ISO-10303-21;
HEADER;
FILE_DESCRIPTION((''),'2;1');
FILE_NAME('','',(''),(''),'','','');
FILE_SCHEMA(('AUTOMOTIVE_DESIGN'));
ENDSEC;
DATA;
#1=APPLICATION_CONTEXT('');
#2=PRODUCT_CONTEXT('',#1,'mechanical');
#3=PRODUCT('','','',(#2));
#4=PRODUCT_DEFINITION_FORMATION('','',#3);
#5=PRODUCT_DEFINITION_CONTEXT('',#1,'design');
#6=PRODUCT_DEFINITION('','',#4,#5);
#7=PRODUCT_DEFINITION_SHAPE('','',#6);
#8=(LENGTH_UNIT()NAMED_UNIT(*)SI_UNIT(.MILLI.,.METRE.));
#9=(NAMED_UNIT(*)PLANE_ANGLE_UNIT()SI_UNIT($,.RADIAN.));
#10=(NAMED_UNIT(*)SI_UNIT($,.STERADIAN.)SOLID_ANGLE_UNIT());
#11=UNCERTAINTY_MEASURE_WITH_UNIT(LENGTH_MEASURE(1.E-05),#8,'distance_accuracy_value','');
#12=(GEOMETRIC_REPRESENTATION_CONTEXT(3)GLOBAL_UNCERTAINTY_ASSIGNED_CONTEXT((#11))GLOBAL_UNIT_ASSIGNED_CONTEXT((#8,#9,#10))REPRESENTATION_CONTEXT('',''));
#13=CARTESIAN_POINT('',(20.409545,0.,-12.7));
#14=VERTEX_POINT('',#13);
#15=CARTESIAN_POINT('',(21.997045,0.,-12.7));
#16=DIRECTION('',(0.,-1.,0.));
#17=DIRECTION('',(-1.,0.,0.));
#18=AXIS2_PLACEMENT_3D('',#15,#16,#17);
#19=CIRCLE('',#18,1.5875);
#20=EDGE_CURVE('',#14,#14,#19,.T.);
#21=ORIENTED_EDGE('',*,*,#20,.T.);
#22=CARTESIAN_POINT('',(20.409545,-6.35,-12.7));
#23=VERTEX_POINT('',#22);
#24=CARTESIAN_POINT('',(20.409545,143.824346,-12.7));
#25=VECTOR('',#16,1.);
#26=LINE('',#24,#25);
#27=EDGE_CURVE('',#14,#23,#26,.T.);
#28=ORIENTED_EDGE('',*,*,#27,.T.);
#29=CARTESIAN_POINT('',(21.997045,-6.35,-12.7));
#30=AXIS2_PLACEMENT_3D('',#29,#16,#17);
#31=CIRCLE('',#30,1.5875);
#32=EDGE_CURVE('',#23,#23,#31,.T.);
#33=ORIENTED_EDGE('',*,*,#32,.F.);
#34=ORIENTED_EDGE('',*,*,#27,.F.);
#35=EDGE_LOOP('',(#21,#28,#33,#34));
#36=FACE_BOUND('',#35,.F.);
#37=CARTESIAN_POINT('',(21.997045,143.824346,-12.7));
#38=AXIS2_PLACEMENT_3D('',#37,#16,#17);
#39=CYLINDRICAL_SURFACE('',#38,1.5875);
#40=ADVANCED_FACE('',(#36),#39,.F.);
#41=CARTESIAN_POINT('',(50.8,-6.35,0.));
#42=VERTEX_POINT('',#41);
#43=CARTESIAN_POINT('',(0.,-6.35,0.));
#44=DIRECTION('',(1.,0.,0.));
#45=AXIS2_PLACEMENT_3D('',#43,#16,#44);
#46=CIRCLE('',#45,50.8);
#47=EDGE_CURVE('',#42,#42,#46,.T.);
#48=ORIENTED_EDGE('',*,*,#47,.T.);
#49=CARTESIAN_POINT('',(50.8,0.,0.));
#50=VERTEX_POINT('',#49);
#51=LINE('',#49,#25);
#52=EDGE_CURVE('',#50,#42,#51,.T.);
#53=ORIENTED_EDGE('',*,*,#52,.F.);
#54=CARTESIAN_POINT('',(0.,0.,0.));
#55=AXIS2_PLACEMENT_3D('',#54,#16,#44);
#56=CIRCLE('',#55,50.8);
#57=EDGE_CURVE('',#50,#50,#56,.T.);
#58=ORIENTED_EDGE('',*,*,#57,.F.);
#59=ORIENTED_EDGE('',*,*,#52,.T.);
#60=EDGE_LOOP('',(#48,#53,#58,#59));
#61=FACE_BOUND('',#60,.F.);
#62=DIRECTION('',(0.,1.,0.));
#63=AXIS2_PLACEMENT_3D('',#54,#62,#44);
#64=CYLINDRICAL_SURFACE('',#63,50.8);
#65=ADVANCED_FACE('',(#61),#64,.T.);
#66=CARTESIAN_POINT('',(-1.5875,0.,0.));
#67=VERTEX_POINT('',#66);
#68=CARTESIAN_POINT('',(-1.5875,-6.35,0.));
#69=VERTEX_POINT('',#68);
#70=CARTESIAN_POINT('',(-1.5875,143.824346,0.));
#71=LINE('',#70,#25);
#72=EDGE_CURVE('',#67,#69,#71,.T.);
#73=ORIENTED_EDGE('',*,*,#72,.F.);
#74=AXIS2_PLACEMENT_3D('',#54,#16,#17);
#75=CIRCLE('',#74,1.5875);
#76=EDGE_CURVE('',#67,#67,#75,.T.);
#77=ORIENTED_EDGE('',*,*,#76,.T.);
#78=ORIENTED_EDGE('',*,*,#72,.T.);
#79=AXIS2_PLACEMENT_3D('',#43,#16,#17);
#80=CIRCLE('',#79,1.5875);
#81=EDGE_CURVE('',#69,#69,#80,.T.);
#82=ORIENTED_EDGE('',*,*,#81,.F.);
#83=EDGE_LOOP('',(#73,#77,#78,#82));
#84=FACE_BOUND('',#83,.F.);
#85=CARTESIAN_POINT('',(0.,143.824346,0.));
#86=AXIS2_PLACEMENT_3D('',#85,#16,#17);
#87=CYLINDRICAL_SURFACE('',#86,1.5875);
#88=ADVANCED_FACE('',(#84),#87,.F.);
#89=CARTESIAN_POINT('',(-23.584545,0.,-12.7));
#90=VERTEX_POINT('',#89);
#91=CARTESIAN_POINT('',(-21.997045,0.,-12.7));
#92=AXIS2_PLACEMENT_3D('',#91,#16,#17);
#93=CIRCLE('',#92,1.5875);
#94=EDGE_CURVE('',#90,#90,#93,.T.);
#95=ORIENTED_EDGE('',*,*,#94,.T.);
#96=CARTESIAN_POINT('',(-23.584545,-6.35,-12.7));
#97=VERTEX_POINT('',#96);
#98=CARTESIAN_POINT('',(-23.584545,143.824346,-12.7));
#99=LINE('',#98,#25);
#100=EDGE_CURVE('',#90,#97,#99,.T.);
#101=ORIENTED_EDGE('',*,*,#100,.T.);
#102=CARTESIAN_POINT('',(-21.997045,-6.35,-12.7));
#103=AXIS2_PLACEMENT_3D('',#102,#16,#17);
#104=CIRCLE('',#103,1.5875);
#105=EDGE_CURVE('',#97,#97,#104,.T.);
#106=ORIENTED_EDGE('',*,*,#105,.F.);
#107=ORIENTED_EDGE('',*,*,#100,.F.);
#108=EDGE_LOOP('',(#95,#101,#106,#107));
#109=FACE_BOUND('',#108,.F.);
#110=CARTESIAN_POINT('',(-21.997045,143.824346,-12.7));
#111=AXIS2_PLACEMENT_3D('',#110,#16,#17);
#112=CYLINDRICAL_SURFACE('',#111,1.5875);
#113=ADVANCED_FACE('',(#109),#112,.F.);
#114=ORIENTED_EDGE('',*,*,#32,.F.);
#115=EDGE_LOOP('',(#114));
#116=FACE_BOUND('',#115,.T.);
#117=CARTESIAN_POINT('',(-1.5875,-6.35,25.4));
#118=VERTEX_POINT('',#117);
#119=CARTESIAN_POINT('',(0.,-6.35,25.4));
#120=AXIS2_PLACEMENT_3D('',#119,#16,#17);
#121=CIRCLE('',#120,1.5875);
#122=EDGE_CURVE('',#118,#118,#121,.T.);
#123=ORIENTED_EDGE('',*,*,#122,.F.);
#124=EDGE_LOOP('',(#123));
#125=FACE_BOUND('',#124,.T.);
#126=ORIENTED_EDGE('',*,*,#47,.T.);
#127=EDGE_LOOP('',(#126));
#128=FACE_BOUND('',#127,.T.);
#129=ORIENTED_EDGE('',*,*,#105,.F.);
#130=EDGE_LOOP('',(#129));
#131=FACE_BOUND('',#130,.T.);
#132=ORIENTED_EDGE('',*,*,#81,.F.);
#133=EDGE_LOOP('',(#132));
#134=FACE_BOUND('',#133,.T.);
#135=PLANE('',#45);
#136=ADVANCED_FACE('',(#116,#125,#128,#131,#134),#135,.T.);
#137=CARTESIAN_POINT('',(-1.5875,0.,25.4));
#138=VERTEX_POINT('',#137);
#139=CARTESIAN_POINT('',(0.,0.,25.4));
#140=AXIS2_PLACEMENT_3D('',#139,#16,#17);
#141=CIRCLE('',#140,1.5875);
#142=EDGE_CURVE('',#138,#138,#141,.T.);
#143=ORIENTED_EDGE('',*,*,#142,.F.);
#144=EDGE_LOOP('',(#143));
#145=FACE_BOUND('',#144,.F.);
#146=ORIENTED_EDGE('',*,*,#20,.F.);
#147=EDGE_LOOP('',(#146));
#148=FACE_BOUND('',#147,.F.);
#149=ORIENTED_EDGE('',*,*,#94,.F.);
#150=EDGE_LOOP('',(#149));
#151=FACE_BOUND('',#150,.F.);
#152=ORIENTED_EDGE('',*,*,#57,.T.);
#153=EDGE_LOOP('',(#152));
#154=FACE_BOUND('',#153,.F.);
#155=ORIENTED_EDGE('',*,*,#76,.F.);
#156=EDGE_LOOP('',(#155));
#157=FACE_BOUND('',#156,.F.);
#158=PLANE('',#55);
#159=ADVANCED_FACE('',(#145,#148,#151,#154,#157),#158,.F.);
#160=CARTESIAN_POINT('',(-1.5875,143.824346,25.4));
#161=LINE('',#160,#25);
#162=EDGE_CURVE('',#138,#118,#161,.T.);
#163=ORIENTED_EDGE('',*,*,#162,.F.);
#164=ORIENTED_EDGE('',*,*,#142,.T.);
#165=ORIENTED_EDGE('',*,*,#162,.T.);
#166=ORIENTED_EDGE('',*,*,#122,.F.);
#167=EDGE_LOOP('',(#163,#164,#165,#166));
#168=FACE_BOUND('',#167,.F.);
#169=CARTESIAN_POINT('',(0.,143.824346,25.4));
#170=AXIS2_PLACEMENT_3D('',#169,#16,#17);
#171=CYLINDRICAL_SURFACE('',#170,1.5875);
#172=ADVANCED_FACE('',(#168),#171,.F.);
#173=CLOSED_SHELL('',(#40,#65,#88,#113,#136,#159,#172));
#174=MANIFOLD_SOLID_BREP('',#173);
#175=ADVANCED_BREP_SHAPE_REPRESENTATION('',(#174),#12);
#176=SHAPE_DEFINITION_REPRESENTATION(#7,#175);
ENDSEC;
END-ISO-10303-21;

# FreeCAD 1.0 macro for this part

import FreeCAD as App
import Part
import Sketcher
Q = App.Units.Quantity

doc = App.newDocument("Part")
body = doc.addObject("PartDesign::Body", "Body")

# Sketch on XZ plane
sketch1 = body.newObject("Sketcher::SketchObject", "Sketch")
sketch1.AttachmentSupport = (doc.getObject("XZ_Plane"), [""])
sketch1.MapMode = "FlatFace"
sketch1.addGeometry(Part.Circle(App.Vector(0, 0, 0), App.Vector(0, 0, 1), 51), False)
sketch1.addConstraint([
    Sketcher.Constraint("Coincident", 0, 3, -1, 1),
    Sketcher.Constraint("Diameter", 0, Q("4 in")),
])
pad1 = body.newObject("PartDesign::Pad", "Pad")
pad1.Profile = sketch1
pad1.Length = Q("0.25 in")

# Sketch on XZ plane
sketch2 = body.newObject("Sketcher::SketchObject", "Sketch001")
sketch2.AttachmentSupport = (doc.getObject("XZ_Plane"), [""])
sketch2.MapMode = "FlatFace"
sketch2.addGeometry(Part.Circle(App.Vector(0, 0, 0), App.Vector(0, 0, 1), 1.6), False)
sketch2.addConstraint([
    Sketcher.Constraint("Coincident", 0, 3, -1, 1),
    Sketcher.Constraint("Diameter", 0, Q("0.125 in")),
])
doc.recompute()
hole = body.newObject("PartDesign::Hole", "Hole")
hole.Profile = sketch2
hole.ThreadType = "None"
hole.Diameter = Q("0.125 in")
hole.DepthType = "ThroughAll"
hole.Reversed = True

# Sketch on XZ plane
sketch3 = body.newObject("Sketcher::SketchObject", "Sketch002")
sketch3.AttachmentSupport = (doc.getObject("XZ_Plane"), [""])
sketch3.MapMode = "FlatFace"
sketch3.addGeometry([
    Part.Circle(App.Vector(0, 25.4, 0), App.Vector(0, 0, 1), 1.6),
    Part.Circle(App.Vector(22, -12.7, 0), App.Vector(0, 0, 1), 1.6),
    Part.Circle(App.Vector(-22, -12.7, 0), App.Vector(0, 0, 1), 1.6),
], False)
sketch3.addConstraint([
    Sketcher.Constraint("Equal", 0, 1),
    Sketcher.Constraint("Equal", 1, 2),
    Sketcher.Constraint("Symmetric", 1, 3, 2, 3, -2),
    Sketcher.Constraint("PointOnObject", 0, 3, -2),
    Sketcher.Constraint("Diameter", 0, Q("0.125 in")),
    Sketcher.Constraint("DistanceY", -1, 1, 0, 3, Q("1 in")),
    Sketcher.Constraint("DistanceY", 1, 3, -1, 1, Q("0.5 in")),
    Sketcher.Constraint("DistanceX", 2, 3, 1, 3, Q("43.994091 mm")),
])
doc.recompute()
hole2 = body.newObject("PartDesign::Hole", "Hole001")
hole2.Profile = sketch3
hole2.ThreadType = "None"
hole2.Diameter = Q("0.125 in")
hole2.DepthType = "ThroughAll"
hole2.Reversed = True

doc.recompute()
